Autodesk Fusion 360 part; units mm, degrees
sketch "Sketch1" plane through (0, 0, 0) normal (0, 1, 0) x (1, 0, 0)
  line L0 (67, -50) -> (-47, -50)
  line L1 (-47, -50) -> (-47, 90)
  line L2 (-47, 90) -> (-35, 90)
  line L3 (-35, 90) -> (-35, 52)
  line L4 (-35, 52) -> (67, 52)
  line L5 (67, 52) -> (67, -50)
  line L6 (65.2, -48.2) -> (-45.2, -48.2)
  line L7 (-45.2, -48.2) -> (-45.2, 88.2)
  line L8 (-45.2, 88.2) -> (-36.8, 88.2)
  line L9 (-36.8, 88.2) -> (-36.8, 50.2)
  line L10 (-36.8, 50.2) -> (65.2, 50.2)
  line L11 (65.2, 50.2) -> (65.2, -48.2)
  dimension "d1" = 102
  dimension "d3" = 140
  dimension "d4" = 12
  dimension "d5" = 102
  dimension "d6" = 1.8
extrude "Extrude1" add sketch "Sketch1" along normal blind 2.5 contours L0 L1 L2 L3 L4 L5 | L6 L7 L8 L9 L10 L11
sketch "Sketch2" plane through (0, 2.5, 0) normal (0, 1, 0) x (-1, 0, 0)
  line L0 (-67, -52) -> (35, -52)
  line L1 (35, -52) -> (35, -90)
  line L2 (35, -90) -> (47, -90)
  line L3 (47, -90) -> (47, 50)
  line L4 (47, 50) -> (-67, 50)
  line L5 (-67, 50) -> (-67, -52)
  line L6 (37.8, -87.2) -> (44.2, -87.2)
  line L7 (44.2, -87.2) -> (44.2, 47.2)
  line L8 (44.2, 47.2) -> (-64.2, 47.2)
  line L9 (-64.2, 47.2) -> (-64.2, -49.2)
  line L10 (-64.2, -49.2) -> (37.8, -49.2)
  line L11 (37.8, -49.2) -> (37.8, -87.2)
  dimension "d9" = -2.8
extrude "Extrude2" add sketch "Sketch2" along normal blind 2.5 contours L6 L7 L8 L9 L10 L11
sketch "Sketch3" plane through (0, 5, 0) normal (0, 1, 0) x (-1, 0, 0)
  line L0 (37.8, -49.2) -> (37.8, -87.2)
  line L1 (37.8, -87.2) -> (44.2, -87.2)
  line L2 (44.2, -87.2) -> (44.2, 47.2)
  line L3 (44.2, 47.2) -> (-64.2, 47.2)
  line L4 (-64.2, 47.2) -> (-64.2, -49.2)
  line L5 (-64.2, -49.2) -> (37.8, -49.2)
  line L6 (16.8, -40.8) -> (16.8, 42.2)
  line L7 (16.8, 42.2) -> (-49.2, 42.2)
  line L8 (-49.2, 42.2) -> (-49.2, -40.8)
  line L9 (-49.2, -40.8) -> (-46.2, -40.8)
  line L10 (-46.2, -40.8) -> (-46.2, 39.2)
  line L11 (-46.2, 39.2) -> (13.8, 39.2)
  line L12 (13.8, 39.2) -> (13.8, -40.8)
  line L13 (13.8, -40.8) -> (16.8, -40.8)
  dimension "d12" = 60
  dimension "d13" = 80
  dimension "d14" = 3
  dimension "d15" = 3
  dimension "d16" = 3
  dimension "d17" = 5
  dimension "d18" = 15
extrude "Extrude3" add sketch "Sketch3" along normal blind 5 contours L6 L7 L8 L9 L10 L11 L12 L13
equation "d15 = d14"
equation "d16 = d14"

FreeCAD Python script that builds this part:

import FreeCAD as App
import Part
import Sketcher

V = App.Vector


def add_polygon(sketch, points):
    """Adds a closed chain of lines whose ends are joined by coincident constraints."""
    first, n = sketch.GeometryCount, len(points)
    for a, b in zip(points, points[1:] + points[:1]):
        sketch.addGeometry(Part.LineSegment(App.Vector(*a, 0), App.Vector(*b, 0)), False)
    for i in range(n):
        sketch.addConstraint(Sketcher.Constraint("Coincident", first + i, 2, first + (i + 1) % n, 1))

doc = App.newDocument("Part")
body = doc.addObject("PartDesign::Body", "Body")

sketch1 = body.newObject("Sketcher::SketchObject", "Sketch")
sketch1.AttachmentSupport = (doc.getObject("XZ_Plane"), [""])
sketch1.MapMode = "FlatFace"
add_polygon(sketch1, [(-47, 50), (67, 50), (67, -52), (-35, -52), (-35, -90), (-47, -90)])
sketch1.addConstraint(Sketcher.Constraint("Horizontal", 0))
sketch1.addConstraint(Sketcher.Constraint("Vertical", 1))
sketch1.addConstraint(Sketcher.Constraint("Horizontal", 2))
sketch1.addConstraint(Sketcher.Constraint("Vertical", 3))
sketch1.addConstraint(Sketcher.Constraint("Horizontal", 4))
sketch1.addConstraint(Sketcher.Constraint("Vertical", 5))
sketch1.addConstraint(Sketcher.Constraint("Equal", 2, 1))
sketch1.addConstraint(Sketcher.Constraint("DistanceX", 2, 2, 2, 1, 102.0))
sketch1.addConstraint(Sketcher.Constraint("DistanceX", 4, 2, 4, 1, 12.0))
sketch1.addConstraint(Sketcher.Constraint("DistanceY", 5, 1, 5, 2, 140.0))
sketch1.addConstraint(Sketcher.Constraint("DistanceX", -1, 1, 0, 2, 67.0))
sketch1.addConstraint(Sketcher.Constraint("DistanceY", -1, 1, 0, 2, 50.0))
pad1 = body.newObject("PartDesign::Pad", "Pad")
pad1.Profile = sketch1
pad1.Length = 2.5
pad1.Reversed = True

sketch2 = body.newObject("Sketcher::SketchObject", "Sketch001")
sketch2.AttachmentSupport = (doc.getObject("XZ_Plane"), [""])
sketch2.MapMode = "FlatFace"
sketch2.AttachmentOffset = App.Placement(V(0, 0, -2.5), App.Rotation())
add_polygon(sketch2, [(-38, -49), (-38, -87), (-44, -87), (-44, 47), (64, 47), (64, -49)])
sketch2.addConstraint(Sketcher.Constraint("Vertical", 0))
sketch2.addConstraint(Sketcher.Constraint("Horizontal", 1))
sketch2.addConstraint(Sketcher.Constraint("Vertical", 2))
sketch2.addConstraint(Sketcher.Constraint("Horizontal", 3))
sketch2.addConstraint(Sketcher.Constraint("Vertical", 4))
sketch2.addConstraint(Sketcher.Constraint("Horizontal", 5))
sketch2.addConstraint(Sketcher.Constraint("DistanceX", 5, 2, 5, 1, 102.0))
sketch2.addConstraint(Sketcher.Constraint("DistanceY", 0, 2, 0, 1, 38.0))
sketch2.addConstraint(Sketcher.Constraint("DistanceX", 1, 2, 1, 1, 6.4))
sketch2.addConstraint(Sketcher.Constraint("DistanceY", 2, 1, 2, 2, 134.4))
sketch2.addConstraint(Sketcher.Constraint("DistanceX", 0, 2, -1, 1, 37.8))
sketch2.addConstraint(Sketcher.Constraint("DistanceY", 0, 2, -1, 1, 87.2))
pad2 = body.newObject("PartDesign::Pad", "Pad001")
pad2.Profile = sketch2
pad2.Length = 2.5
pad2.Reversed = True

sketch3 = body.newObject("Sketcher::SketchObject", "Sketch002")
sketch3.AttachmentSupport = (doc.getObject("XZ_Plane"), [""])
sketch3.MapMode = "FlatFace"
sketch3.AttachmentOffset = App.Placement(V(0, 0, -5), App.Rotation())
add_polygon(sketch3, [(-13.8, -40.8), (-16.8, -40.8), (-16.8, 42.2), (49.2, 42.2), (49.2, -40.8), (46.2, -40.8), (46.2, 39.2), (-13.8, 39.2)])
sketch3.addConstraint(Sketcher.Constraint("Horizontal", 0))
sketch3.addConstraint(Sketcher.Constraint("Vertical", 1))
sketch3.addConstraint(Sketcher.Constraint("Horizontal", 2))
sketch3.addConstraint(Sketcher.Constraint("Vertical", 3))
sketch3.addConstraint(Sketcher.Constraint("Horizontal", 4))
sketch3.addConstraint(Sketcher.Constraint("Vertical", 5))
sketch3.addConstraint(Sketcher.Constraint("Horizontal", 6))
sketch3.addConstraint(Sketcher.Constraint("Vertical", 7))
sketch3.addConstraint(Sketcher.Constraint("Horizontal", 0, 2, 3, 2))
sketch3.addConstraint(Sketcher.Constraint("Equal", 0, 4))
sketch3.addConstraint(Sketcher.Constraint("DistanceX", 0, 2, 0, 1, 3.0))
sketch3.addConstraint(Sketcher.Constraint("DistanceX", 6, 2, 6, 1, 60.0))
sketch3.addConstraint(Sketcher.Constraint("DistanceY", 5, 1, 5, 2, 80.0))
sketch3.addConstraint(Sketcher.Constraint("DistanceY", 5, 2, 2, 2, 3.0))
sketch3.addConstraint(Sketcher.Constraint("DistanceX", 0, 2, -1, 1, 16.8))
sketch3.addConstraint(Sketcher.Constraint("DistanceY", 0, 2, -1, 1, 40.8))
pad3 = body.newObject("PartDesign::Pad", "Pad002")
pad3.Profile = sketch3
pad3.Length = 5
pad3.Reversed = True

doc.recompute()
